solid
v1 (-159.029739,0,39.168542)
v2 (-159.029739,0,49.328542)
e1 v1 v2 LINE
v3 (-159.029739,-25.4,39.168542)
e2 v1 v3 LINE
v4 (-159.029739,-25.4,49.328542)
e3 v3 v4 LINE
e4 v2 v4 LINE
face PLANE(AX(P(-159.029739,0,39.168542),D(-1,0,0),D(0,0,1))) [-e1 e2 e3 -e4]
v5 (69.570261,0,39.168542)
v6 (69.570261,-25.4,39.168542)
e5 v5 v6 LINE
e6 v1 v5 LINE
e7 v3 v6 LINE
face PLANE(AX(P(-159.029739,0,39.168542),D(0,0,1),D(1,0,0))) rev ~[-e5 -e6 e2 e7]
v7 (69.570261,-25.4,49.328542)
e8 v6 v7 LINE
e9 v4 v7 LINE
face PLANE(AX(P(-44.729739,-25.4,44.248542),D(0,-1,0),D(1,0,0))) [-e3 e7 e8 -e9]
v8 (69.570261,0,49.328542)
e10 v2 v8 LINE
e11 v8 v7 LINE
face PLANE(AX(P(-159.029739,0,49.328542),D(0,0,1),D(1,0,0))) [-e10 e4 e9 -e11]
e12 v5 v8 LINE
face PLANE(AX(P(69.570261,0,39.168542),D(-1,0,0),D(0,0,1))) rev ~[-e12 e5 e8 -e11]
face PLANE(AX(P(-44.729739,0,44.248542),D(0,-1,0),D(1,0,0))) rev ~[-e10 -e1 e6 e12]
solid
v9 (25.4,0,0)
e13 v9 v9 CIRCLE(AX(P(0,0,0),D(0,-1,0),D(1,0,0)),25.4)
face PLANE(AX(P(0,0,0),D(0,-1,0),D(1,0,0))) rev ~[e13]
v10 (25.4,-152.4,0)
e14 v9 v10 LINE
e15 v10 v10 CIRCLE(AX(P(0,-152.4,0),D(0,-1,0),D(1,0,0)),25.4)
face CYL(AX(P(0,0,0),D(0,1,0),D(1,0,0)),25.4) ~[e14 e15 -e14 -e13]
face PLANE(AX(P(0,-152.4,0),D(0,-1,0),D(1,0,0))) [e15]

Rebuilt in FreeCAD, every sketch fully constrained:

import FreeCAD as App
import Part
import Sketcher
from FreeCAD import Vector
Q = App.Units.Quantity


def add_polygon(sketch, points):
    """Adds a closed chain of lines whose ends are joined by coincident constraints."""
    first, n = sketch.GeometryCount, len(points)
    for a, b in zip(points, points[1:] + points[:1]):
        sketch.addGeometry(Part.LineSegment(App.Vector(*a, 0), App.Vector(*b, 0)), False)
    for i in range(n):
        sketch.addConstraint(Sketcher.Constraint("Coincident", first + i, 2, first + (i + 1) % n, 1))

doc = App.newDocument("Part")
body = doc.addObject("PartDesign::Body", "Body")

# Sketch on XZ plane
sketch1 = body.newObject("Sketcher::SketchObject", "Sketch")
sketch1.AttachmentSupport = (doc.getObject("XZ_Plane"), [""])
sketch1.MapMode = "FlatFace"
sketch1.addGeometry(Part.Circle(Vector(0, 0, 0), Vector(0, 0, 1), 25), False)
sketch1.addConstraint(Sketcher.Constraint("Coincident", 0, 3, -1, 1))
sketch1.addConstraint(Sketcher.Constraint("Diameter", 0, Q("2 in")))
pad1 = body.newObject("PartDesign::Pad", "Pad")
pad1.Profile = sketch1
pad1.Length = Q("6 in")
body2 = doc.addObject("PartDesign::Body", "Body001")

# Sketch on XZ plane
sketch2 = body2.newObject("Sketcher::SketchObject", "Sketch001")
sketch2.AttachmentSupport = (doc.getObject("XZ_Plane001"), [""])
sketch2.MapMode = "FlatFace"
add_polygon(sketch2, [(-159, 49), (-159, 39), (70, 39), (70, 49)])  # lines 0-3
sketch2.addConstraint(Sketcher.Constraint("Vertical", 0))
sketch2.addConstraint(Sketcher.Constraint("Horizontal", 1))
sketch2.addConstraint(Sketcher.Constraint("Vertical", 2))
sketch2.addConstraint(Sketcher.Constraint("Horizontal", 3))
sketch2.addConstraint(Sketcher.Constraint("DistanceX", 1, 1, 1, 2, Q("9 in")))
sketch2.addConstraint(Sketcher.Constraint("DistanceY", 0, 2, 0, 1, Q("0.4 in")))
sketch2.addConstraint(Sketcher.Constraint("DistanceX", 0, 2, -1, 1, Q("159.029739 mm")))
sketch2.addConstraint(Sketcher.Constraint("DistanceY", -1, 1, 0, 2, Q("39.168542 mm")))
pad2 = body2.newObject("PartDesign::Pad", "Pad001")
pad2.Profile = sketch2
pad2.Length = Q("1 in")

doc.recompute()
